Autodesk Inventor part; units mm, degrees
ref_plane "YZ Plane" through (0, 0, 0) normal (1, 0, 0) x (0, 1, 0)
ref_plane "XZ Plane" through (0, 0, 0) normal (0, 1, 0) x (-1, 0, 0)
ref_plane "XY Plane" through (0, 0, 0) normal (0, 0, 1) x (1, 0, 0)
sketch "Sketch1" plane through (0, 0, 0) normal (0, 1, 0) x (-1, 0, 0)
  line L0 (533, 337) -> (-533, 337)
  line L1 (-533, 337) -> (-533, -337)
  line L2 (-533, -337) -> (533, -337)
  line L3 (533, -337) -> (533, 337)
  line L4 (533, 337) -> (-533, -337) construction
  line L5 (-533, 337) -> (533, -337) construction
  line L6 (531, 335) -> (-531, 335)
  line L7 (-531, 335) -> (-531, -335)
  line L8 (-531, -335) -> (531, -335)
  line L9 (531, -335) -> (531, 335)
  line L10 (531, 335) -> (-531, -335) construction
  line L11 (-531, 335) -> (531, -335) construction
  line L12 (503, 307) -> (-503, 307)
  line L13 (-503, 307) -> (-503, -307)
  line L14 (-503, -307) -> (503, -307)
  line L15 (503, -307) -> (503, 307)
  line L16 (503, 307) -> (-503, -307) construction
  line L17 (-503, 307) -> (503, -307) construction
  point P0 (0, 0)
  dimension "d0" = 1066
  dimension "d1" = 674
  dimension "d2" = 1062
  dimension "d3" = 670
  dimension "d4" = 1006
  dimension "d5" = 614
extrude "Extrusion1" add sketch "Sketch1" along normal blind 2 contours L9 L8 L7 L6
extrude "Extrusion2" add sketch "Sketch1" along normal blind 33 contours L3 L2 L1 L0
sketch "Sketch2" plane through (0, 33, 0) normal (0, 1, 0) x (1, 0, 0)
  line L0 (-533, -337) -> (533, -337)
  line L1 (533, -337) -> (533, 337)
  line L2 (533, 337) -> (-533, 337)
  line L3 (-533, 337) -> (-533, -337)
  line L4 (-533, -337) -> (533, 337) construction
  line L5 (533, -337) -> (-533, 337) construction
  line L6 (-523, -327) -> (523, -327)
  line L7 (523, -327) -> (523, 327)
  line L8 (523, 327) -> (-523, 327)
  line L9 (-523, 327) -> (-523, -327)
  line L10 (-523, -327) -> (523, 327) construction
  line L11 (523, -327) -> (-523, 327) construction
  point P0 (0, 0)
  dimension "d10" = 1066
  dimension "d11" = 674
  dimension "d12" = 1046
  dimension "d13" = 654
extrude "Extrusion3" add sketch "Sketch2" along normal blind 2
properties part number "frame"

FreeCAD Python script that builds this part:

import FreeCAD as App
import Part
import Sketcher

V = App.Vector

doc = App.newDocument("Part")
params = doc.addObject("Spreadsheet::Sheet", "Params")
for row, (alias, value) in enumerate([
    ("sketch1_width", "1062 mm"),
    ("sketch1_width2", "1006 mm"),
    ("sketch1_height", "670 mm"),
    ("sketch1_height2", "614 mm"),
    ("pad1_length", "2 mm"),
    ("sketch2_width", "1066 mm"),
    ("sketch2_width2", "1062 mm"),
    ("sketch2_height", "674 mm"),
    ("sketch2_height2", "670 mm"),
    ("pad2_length", "33 mm"),
    ("sketch3_width", "1066 mm"),
    ("sketch3_width2", "1046 mm"),
    ("sketch3_height", "674 mm"),
    ("sketch3_height2", "654 mm"),
    ("pad3_length", "2 mm"),
], start=1):
    params.set(f"A{row}", alias)
    params.set(f"B{row}", "=" + value)
    params.setAlias(f"B{row}", alias)

body = doc.addObject("PartDesign::Body", "Body")

sketch1 = doc.addObject("Sketcher::SketchObject", "Sketch")
body.addObject(sketch1)
sketch1.AttachmentSupport = (doc.XZ_Plane, [""])
sketch1.MapMode = "FlatFace"
sketch1.addGeometry([
    Part.LineSegment(V(-531, -335, 0), V(-531, 335, 0)),
    Part.LineSegment(V(-531, 335, 0), V(531, 335, 0)),
    Part.LineSegment(V(531, 335, 0), V(531, -335, 0)),
    Part.LineSegment(V(531, -335, 0), V(-531, -335, 0)),
    Part.LineSegment(V(503, 307, 0), V(-503, 307, 0)),
    Part.LineSegment(V(-503, 307, 0), V(-503, -307, 0)),
    Part.LineSegment(V(-503, -307, 0), V(503, -307, 0)),
    Part.LineSegment(V(503, -307, 0), V(503, 307, 0)),
], False)
sketch1.addConstraint([
    Sketcher.Constraint("Coincident", 0, 2, 1, 1),
    Sketcher.Constraint("Coincident", 1, 2, 2, 1),
    Sketcher.Constraint("Coincident", 2, 2, 3, 1),
    Sketcher.Constraint("Coincident", 3, 2, 0, 1),
    Sketcher.Constraint("Coincident", 4, 2, 5, 1),
    Sketcher.Constraint("Coincident", 5, 2, 6, 1),
    Sketcher.Constraint("Coincident", 6, 2, 7, 1),
    Sketcher.Constraint("Coincident", 7, 2, 4, 1),
    Sketcher.Constraint("Vertical", 0),
    Sketcher.Constraint("Horizontal", 1),
    Sketcher.Constraint("Vertical", 2),
    Sketcher.Constraint("Horizontal", 3),
    Sketcher.Constraint("Horizontal", 4),
    Sketcher.Constraint("Vertical", 5),
    Sketcher.Constraint("Horizontal", 6),
    Sketcher.Constraint("Vertical", 7),
    Sketcher.Constraint("Symmetric", 0, 2, 2, 2, -1, 1),
    Sketcher.Constraint("Symmetric", 4, 2, 6, 2, -1, 1),
    Sketcher.Constraint("DistanceX", 1, 1, 1, 2, 1062.0),
    Sketcher.Constraint("DistanceX", 4, 2, 4, 1, 1006.0),
    Sketcher.Constraint("DistanceY", 0, 1, 0, 2, 670.0),
    Sketcher.Constraint("DistanceY", 5, 2, 5, 1, 614.0),
])
sketch1.setExpression("Constraints[18]", "Params.sketch1_width")
sketch1.setExpression("Constraints[19]", "Params.sketch1_width2")
sketch1.setExpression("Constraints[20]", "Params.sketch1_height")
sketch1.setExpression("Constraints[21]", "Params.sketch1_height2")
pad1 = doc.addObject("PartDesign::Pad", "Pad")
body.addObject(pad1)
pad1.Profile = sketch1
pad1.setExpression("Length", "Params.pad1_length")
pad1.Reversed = True

sketch2 = doc.addObject("Sketcher::SketchObject", "Sketch001")
body.addObject(sketch2)
sketch2.AttachmentSupport = (doc.XZ_Plane, [""])
sketch2.MapMode = "FlatFace"
sketch2.addGeometry([
    Part.LineSegment(V(-533, -337, 0), V(-533, 337, 0)),
    Part.LineSegment(V(-533, 337, 0), V(533, 337, 0)),
    Part.LineSegment(V(533, 337, 0), V(533, -337, 0)),
    Part.LineSegment(V(533, -337, 0), V(-533, -337, 0)),
    Part.LineSegment(V(531, 335, 0), V(-531, 335, 0)),
    Part.LineSegment(V(-531, 335, 0), V(-531, -335, 0)),
    Part.LineSegment(V(-531, -335, 0), V(531, -335, 0)),
    Part.LineSegment(V(531, -335, 0), V(531, 335, 0)),
], False)
sketch2.addConstraint([
    Sketcher.Constraint("Coincident", 0, 2, 1, 1),
    Sketcher.Constraint("Coincident", 1, 2, 2, 1),
    Sketcher.Constraint("Coincident", 2, 2, 3, 1),
    Sketcher.Constraint("Coincident", 3, 2, 0, 1),
    Sketcher.Constraint("Coincident", 4, 2, 5, 1),
    Sketcher.Constraint("Coincident", 5, 2, 6, 1),
    Sketcher.Constraint("Coincident", 6, 2, 7, 1),
    Sketcher.Constraint("Coincident", 7, 2, 4, 1),
    Sketcher.Constraint("Vertical", 0),
    Sketcher.Constraint("Horizontal", 1),
    Sketcher.Constraint("Vertical", 2),
    Sketcher.Constraint("Horizontal", 3),
    Sketcher.Constraint("Horizontal", 4),
    Sketcher.Constraint("Vertical", 5),
    Sketcher.Constraint("Horizontal", 6),
    Sketcher.Constraint("Vertical", 7),
    Sketcher.Constraint("Symmetric", 0, 2, 2, 2, -1, 1),
    Sketcher.Constraint("Symmetric", 4, 2, 6, 2, -1, 1),
    Sketcher.Constraint("DistanceX", 1, 1, 1, 2, 1066.0),
    Sketcher.Constraint("DistanceX", 4, 2, 4, 1, 1062.0),
    Sketcher.Constraint("DistanceY", 0, 1, 0, 2, 674.0),
    Sketcher.Constraint("DistanceY", 5, 2, 5, 1, 670.0),
])
sketch2.setExpression("Constraints[18]", "Params.sketch2_width")
sketch2.setExpression("Constraints[19]", "Params.sketch2_width2")
sketch2.setExpression("Constraints[20]", "Params.sketch2_height")
sketch2.setExpression("Constraints[21]", "Params.sketch2_height2")
pad2 = doc.addObject("PartDesign::Pad", "Pad001")
body.addObject(pad2)
pad2.Profile = sketch2
pad2.setExpression("Length", "Params.pad2_length")
pad2.Reversed = True

sketch3 = doc.addObject("Sketcher::SketchObject", "Sketch002")
body.addObject(sketch3)
sketch3.AttachmentSupport = (doc.XZ_Plane, [""])
sketch3.MapMode = "FlatFace"
sketch3.AttachmentOffset = App.Placement(V(0, 0, -33), App.Rotation())
sketch3.addGeometry([
    Part.LineSegment(V(-533, -337, 0), V(-533, 337, 0)),
    Part.LineSegment(V(-533, 337, 0), V(533, 337, 0)),
    Part.LineSegment(V(533, 337, 0), V(533, -337, 0)),
    Part.LineSegment(V(533, -337, 0), V(-533, -337, 0)),
    Part.LineSegment(V(523, 327, 0), V(-523, 327, 0)),
    Part.LineSegment(V(-523, 327, 0), V(-523, -327, 0)),
    Part.LineSegment(V(-523, -327, 0), V(523, -327, 0)),
    Part.LineSegment(V(523, -327, 0), V(523, 327, 0)),
], False)
sketch3.addConstraint([
    Sketcher.Constraint("Coincident", 0, 2, 1, 1),
    Sketcher.Constraint("Coincident", 1, 2, 2, 1),
    Sketcher.Constraint("Coincident", 2, 2, 3, 1),
    Sketcher.Constraint("Coincident", 3, 2, 0, 1),
    Sketcher.Constraint("Coincident", 4, 2, 5, 1),
    Sketcher.Constraint("Coincident", 5, 2, 6, 1),
    Sketcher.Constraint("Coincident", 6, 2, 7, 1),
    Sketcher.Constraint("Coincident", 7, 2, 4, 1),
    Sketcher.Constraint("Vertical", 0),
    Sketcher.Constraint("Horizontal", 1),
    Sketcher.Constraint("Vertical", 2),
    Sketcher.Constraint("Horizontal", 3),
    Sketcher.Constraint("Horizontal", 4),
    Sketcher.Constraint("Vertical", 5),
    Sketcher.Constraint("Horizontal", 6),
    Sketcher.Constraint("Vertical", 7),
    Sketcher.Constraint("Symmetric", 0, 2, 2, 2, -1, 1),
    Sketcher.Constraint("Symmetric", 4, 2, 6, 2, -1, 1),
    Sketcher.Constraint("DistanceX", 1, 1, 1, 2, 1066.0),
    Sketcher.Constraint("DistanceX", 4, 2, 4, 1, 1046.0),
    Sketcher.Constraint("DistanceY", 0, 1, 0, 2, 674.0),
    Sketcher.Constraint("DistanceY", 5, 2, 5, 1, 654.0),
])
sketch3.setExpression("Constraints[18]", "Params.sketch3_width")
sketch3.setExpression("Constraints[19]", "Params.sketch3_width2")
sketch3.setExpression("Constraints[20]", "Params.sketch3_height")
sketch3.setExpression("Constraints[21]", "Params.sketch3_height2")
pad3 = doc.addObject("PartDesign::Pad", "Pad002")
body.addObject(pad3)
pad3.Profile = sketch3
pad3.setExpression("Length", "Params.pad3_length")
pad3.Reversed = True

doc.recompute()
